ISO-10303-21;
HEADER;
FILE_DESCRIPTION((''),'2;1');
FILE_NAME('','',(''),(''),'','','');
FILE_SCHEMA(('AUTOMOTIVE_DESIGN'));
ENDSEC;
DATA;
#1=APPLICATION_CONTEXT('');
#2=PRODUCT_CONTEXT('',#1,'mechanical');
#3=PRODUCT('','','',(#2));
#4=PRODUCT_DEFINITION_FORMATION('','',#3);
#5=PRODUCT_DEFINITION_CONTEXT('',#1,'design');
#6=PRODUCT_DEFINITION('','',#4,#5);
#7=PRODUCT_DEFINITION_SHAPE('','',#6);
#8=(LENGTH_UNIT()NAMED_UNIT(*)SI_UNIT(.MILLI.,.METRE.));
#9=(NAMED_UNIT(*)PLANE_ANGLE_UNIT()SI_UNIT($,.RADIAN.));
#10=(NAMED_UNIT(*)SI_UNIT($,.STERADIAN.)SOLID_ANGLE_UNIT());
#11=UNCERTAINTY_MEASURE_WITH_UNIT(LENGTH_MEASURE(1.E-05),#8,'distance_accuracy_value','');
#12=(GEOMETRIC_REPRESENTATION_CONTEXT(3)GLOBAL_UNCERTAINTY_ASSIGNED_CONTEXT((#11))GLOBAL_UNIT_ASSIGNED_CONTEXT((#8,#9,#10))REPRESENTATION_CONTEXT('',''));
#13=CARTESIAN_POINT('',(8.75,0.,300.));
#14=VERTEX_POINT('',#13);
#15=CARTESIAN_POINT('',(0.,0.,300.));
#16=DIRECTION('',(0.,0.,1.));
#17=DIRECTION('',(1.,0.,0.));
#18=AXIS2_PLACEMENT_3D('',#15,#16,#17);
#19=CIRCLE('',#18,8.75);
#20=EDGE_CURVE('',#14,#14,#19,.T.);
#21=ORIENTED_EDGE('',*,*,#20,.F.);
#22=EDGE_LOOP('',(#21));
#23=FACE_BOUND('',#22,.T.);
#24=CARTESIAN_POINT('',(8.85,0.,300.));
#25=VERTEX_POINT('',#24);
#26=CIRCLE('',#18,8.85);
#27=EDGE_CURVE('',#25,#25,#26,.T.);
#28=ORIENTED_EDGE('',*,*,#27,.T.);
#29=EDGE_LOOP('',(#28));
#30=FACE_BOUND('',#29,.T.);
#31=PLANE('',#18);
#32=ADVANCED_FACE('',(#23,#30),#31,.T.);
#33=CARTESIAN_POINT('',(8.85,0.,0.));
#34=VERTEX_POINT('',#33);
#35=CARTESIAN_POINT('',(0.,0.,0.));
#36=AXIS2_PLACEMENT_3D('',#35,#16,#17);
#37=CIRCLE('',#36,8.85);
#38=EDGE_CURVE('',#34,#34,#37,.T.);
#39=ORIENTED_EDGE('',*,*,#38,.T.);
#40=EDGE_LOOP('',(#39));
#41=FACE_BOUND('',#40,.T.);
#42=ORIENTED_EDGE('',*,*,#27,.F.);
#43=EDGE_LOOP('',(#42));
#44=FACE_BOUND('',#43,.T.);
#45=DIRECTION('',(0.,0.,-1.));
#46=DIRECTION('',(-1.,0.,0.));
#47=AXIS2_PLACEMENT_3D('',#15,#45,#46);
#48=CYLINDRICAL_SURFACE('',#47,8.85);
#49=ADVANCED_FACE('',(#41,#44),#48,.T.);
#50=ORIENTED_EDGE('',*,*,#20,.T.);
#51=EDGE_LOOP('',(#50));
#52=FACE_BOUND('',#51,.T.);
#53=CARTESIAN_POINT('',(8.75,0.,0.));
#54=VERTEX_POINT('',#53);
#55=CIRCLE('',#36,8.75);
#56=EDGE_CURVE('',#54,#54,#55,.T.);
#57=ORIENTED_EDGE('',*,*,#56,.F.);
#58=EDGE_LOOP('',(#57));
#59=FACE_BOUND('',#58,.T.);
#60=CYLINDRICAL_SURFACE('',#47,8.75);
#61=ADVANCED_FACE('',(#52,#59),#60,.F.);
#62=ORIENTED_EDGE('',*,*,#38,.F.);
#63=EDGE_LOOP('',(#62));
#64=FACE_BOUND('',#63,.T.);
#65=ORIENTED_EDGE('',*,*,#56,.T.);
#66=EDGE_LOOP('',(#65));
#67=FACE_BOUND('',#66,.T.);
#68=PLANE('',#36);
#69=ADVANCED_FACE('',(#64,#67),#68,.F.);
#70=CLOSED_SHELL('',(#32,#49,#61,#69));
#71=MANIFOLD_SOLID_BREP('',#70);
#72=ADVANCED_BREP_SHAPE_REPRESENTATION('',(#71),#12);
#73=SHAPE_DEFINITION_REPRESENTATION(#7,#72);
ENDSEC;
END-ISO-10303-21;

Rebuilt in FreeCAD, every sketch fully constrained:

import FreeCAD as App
import Part
import Sketcher
Q = App.Units.Quantity

doc = App.newDocument("Part")
body = doc.addObject("PartDesign::Body", "Body")

# Sketch on XY plane
sketch1 = body.newObject("Sketcher::SketchObject", "Sketch")
sketch1.AttachmentSupport = (doc.getObject("XY_Plane"), [""])
sketch1.MapMode = "FlatFace"
sketch1.addGeometry([
    Part.Circle(App.Vector(0, 0, 0), App.Vector(0, 0, 1), 9),
    Part.Circle(App.Vector(0, 0, 0), App.Vector(0, 0, 1), 9),
], False)
sketch1.addConstraint([
    Sketcher.Constraint("Coincident", 0, 3, -1, 1),
    Sketcher.Constraint("Coincident", 1, 3, -1, 1),
    Sketcher.Constraint("Diameter", 0, Q("17.7 mm")),
    Sketcher.Constraint("Diameter", 1, Q("17.5 mm")),
])
pad1 = body.newObject("PartDesign::Pad", "Pad")
pad1.Profile = sketch1
pad1.Length = 300

doc.recompute()
